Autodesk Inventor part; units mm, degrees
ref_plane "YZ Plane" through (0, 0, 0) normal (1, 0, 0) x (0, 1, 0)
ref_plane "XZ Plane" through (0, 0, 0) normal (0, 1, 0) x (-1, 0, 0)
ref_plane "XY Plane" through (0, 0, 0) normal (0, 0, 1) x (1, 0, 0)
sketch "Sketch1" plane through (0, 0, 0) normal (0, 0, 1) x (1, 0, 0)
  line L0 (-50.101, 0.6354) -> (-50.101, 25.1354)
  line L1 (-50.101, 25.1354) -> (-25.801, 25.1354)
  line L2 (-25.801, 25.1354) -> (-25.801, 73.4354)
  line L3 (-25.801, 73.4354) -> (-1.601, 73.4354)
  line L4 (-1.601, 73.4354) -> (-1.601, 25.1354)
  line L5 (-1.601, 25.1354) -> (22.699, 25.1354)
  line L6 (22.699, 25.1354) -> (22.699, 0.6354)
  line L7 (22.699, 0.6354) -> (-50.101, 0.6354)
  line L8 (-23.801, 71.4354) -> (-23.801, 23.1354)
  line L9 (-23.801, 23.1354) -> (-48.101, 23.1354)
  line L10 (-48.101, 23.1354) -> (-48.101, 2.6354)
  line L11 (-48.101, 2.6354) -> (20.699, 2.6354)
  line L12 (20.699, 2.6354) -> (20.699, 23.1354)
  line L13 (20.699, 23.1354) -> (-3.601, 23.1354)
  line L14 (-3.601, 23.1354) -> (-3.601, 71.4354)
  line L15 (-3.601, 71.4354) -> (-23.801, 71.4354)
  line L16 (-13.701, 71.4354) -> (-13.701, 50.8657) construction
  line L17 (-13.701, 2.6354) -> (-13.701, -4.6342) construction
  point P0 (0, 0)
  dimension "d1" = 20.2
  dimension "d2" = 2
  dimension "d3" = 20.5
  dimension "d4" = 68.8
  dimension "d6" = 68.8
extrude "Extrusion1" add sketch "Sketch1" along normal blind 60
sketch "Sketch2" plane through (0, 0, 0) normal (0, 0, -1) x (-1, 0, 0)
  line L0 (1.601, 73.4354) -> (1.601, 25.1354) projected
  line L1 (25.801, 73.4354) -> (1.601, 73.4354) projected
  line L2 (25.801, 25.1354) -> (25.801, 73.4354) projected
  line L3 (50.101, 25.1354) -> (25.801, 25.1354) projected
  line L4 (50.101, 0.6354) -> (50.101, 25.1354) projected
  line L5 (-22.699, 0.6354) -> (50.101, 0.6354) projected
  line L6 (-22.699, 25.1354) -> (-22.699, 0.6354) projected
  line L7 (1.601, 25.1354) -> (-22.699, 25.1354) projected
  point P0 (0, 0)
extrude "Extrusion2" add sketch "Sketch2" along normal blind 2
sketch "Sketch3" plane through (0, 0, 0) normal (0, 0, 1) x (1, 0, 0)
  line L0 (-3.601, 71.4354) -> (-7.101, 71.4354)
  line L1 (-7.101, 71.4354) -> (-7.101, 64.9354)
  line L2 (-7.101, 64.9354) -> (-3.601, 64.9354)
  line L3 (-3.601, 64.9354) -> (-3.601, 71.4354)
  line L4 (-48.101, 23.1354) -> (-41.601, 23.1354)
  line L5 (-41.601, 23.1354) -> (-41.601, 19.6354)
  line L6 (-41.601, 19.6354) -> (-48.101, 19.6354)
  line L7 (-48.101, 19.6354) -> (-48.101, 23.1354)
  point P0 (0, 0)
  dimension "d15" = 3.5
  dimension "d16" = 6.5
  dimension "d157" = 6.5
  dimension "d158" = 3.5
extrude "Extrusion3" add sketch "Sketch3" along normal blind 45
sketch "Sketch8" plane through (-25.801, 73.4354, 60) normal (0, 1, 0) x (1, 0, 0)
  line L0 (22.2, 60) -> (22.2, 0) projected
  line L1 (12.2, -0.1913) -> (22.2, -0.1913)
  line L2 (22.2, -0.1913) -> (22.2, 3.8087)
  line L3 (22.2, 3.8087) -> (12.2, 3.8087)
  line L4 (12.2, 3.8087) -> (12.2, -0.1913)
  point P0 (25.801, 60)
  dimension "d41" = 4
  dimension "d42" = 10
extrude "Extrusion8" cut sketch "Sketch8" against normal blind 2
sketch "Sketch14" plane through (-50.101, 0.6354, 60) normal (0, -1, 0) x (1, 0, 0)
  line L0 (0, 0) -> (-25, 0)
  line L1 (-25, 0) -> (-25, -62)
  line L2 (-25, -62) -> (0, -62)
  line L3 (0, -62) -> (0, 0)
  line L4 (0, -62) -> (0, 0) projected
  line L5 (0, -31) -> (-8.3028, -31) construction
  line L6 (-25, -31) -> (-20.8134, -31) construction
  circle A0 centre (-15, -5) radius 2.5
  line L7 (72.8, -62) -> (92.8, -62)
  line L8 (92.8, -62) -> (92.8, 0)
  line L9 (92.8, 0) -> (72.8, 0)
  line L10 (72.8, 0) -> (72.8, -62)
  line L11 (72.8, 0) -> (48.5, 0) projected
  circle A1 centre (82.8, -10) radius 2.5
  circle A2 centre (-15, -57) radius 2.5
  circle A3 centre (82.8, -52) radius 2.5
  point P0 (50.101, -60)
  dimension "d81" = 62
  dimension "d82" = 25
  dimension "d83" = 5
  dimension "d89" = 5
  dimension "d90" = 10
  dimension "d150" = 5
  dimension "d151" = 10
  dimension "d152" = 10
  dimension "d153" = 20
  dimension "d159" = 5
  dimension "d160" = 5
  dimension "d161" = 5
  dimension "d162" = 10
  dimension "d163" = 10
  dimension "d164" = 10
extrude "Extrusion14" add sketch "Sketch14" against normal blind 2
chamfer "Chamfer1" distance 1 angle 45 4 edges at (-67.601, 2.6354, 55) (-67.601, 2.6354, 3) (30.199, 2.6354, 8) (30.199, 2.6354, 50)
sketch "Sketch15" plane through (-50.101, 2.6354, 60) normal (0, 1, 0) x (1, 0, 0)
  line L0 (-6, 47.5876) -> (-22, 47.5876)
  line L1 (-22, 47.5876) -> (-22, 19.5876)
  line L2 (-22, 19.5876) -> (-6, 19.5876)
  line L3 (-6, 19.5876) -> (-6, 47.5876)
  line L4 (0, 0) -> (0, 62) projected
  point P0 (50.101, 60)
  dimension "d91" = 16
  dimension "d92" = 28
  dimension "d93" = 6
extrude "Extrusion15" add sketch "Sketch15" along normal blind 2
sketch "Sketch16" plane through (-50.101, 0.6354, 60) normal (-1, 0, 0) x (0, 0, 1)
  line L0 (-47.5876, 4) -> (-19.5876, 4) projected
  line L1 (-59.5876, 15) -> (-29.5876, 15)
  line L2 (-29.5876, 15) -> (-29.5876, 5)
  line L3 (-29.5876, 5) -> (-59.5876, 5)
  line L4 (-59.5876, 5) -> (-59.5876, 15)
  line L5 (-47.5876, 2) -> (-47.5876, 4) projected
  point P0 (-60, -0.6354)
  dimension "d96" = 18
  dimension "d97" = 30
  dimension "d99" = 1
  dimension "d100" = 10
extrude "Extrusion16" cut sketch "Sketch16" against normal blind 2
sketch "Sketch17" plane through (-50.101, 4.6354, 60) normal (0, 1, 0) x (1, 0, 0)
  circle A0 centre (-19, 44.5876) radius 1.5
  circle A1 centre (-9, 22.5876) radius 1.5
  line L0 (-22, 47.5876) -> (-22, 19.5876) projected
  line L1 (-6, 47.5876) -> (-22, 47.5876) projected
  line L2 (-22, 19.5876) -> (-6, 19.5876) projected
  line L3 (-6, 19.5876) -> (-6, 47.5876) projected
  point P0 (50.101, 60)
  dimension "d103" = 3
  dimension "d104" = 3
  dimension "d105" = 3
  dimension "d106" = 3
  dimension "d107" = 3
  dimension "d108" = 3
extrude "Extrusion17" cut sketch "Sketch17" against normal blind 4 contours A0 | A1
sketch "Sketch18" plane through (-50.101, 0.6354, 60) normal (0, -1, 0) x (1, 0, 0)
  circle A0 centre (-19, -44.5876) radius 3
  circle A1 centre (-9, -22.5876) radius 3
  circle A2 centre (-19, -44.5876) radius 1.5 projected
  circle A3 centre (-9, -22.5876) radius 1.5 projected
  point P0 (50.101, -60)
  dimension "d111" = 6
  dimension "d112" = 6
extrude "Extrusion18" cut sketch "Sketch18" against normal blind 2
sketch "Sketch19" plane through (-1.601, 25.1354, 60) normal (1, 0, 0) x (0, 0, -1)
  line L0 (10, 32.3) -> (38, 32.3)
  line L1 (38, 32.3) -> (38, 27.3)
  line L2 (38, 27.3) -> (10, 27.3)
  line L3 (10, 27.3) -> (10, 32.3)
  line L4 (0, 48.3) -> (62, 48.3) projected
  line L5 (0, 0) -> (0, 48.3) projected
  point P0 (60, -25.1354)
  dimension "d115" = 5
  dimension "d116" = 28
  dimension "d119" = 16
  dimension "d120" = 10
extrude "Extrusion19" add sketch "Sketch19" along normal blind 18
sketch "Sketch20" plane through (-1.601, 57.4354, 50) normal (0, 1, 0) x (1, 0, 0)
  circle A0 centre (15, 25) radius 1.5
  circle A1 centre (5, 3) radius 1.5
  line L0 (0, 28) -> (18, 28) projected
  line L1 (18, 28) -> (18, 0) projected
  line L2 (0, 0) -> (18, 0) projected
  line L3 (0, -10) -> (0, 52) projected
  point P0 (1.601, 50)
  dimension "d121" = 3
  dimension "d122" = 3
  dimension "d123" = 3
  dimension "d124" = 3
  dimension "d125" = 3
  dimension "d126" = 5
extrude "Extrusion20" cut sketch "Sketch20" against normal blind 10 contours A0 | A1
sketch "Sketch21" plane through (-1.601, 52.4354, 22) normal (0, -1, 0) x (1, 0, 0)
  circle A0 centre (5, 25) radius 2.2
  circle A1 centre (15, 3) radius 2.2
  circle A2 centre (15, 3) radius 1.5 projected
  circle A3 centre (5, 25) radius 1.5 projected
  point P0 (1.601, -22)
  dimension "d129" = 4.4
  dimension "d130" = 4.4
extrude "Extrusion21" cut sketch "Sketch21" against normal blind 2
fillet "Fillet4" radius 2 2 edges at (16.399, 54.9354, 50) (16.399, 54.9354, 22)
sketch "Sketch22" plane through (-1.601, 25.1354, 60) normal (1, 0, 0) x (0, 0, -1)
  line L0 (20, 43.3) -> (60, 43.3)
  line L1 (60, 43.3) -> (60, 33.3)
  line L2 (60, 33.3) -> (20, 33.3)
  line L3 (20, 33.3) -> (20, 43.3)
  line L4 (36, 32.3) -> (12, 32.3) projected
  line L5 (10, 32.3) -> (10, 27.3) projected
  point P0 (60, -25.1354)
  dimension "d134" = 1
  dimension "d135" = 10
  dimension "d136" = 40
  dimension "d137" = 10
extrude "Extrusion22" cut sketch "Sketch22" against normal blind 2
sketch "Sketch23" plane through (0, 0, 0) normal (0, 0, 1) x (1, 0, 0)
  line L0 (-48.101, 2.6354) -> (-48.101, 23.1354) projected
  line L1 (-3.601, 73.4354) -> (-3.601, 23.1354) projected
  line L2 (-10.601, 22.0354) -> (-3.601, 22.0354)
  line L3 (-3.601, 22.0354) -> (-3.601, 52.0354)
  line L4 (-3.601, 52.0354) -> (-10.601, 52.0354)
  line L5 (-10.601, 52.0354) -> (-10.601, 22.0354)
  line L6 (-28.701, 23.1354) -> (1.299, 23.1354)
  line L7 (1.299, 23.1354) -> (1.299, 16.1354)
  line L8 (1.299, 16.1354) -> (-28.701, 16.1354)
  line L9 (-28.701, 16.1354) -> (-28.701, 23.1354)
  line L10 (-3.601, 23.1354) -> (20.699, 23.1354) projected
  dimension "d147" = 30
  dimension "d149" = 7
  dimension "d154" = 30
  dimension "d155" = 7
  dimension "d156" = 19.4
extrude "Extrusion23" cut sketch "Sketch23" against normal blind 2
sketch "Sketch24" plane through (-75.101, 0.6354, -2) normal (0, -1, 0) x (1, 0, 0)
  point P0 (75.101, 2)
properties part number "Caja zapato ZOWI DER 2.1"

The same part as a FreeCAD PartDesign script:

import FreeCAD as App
import Part
import Sketcher

V = App.Vector


def edges_at(feature, points):
    """Names of the edges that pass closest to the given points."""
    edges = feature.Shape.Edges
    near = lambda p: min(range(len(edges)), key=lambda i: edges[i].distToShape(Part.Vertex(*p))[0])
    return sorted({f"Edge{near(p) + 1}" for p in points})

doc = App.newDocument("Part")
body = doc.addObject("PartDesign::Body", "Body")

# Sketch on XY plane
sketch1 = body.newObject("Sketcher::SketchObject", "Sketch")
sketch1.AttachmentSupport = (doc.getObject("XY_Plane"), [""])
sketch1.MapMode = "FlatFace"
sketch1.addGeometry([
    Part.LineSegment(V(-50.101, 25.1354, 0), V(-50.101, 0.6354, 0)),  # 0
    Part.LineSegment(V(-50.101, 0.6354, 0), V(22.699, 0.6354, 0)),  # 1
    Part.LineSegment(V(22.699, 0.6354, 0), V(22.699, 25.1354, 0)),  # 2
    Part.LineSegment(V(22.699, 25.1354, 0), V(-1.601, 25.1354, 0)),  # 3
    Part.LineSegment(V(-1.601, 25.1354, 0), V(-1.601, 73.4354, 0)),  # 4
    Part.LineSegment(V(-1.601, 73.4354, 0), V(-25.801, 73.4354, 0)),  # 5
    Part.LineSegment(V(-25.801, 73.4354, 0), V(-25.801, 25.1354, 0)),  # 6
    Part.LineSegment(V(-25.801, 25.1354, 0), V(-50.101, 25.1354, 0)),  # 7
    Part.LineSegment(V(-23.801, 23.1354, 0), V(-23.801, 71.4354, 0)),  # 8
    Part.LineSegment(V(-23.801, 71.4354, 0), V(-3.601, 71.4354, 0)),  # 9
    Part.LineSegment(V(-3.601, 71.4354, 0), V(-3.601, 23.1354, 0)),  # 10
    Part.LineSegment(V(-3.601, 23.1354, 0), V(20.699, 23.1354, 0)),  # 11
    Part.LineSegment(V(20.699, 23.1354, 0), V(20.699, 2.6354, 0)),  # 12
    Part.LineSegment(V(20.699, 2.6354, 0), V(-48.101, 2.6354, 0)),  # 13
    Part.LineSegment(V(-48.101, 2.6354, 0), V(-48.101, 23.1354, 0)),  # 14
    Part.LineSegment(V(-48.101, 23.1354, 0), V(-23.801, 23.1354, 0)),  # 15
], False)
sketch1.addConstraint([
    Sketcher.Constraint("Coincident", 0, 2, 1, 1),
    Sketcher.Constraint("Coincident", 1, 2, 2, 1),
    Sketcher.Constraint("Coincident", 2, 2, 3, 1),
    Sketcher.Constraint("Coincident", 3, 2, 4, 1),
    Sketcher.Constraint("Coincident", 4, 2, 5, 1),
    Sketcher.Constraint("Coincident", 5, 2, 6, 1),
    Sketcher.Constraint("Coincident", 6, 2, 7, 1),
    Sketcher.Constraint("Coincident", 7, 2, 0, 1),
    Sketcher.Constraint("Coincident", 8, 2, 9, 1),
    Sketcher.Constraint("Coincident", 9, 2, 10, 1),
    Sketcher.Constraint("Coincident", 10, 2, 11, 1),
    Sketcher.Constraint("Coincident", 11, 2, 12, 1),
    Sketcher.Constraint("Coincident", 12, 2, 13, 1),
    Sketcher.Constraint("Coincident", 13, 2, 14, 1),
    Sketcher.Constraint("Coincident", 14, 2, 15, 1),
    Sketcher.Constraint("Coincident", 15, 2, 8, 1),
    Sketcher.Constraint("Vertical", 0),
    Sketcher.Constraint("Horizontal", 1),
    Sketcher.Constraint("Vertical", 2),
    Sketcher.Constraint("Horizontal", 3),
    Sketcher.Constraint("Vertical", 4),
    Sketcher.Constraint("Horizontal", 5),
    Sketcher.Constraint("Vertical", 6),
    Sketcher.Constraint("Horizontal", 7),
    Sketcher.Constraint("Vertical", 8),
    Sketcher.Constraint("Horizontal", 9),
    Sketcher.Constraint("Vertical", 10),
    Sketcher.Constraint("Horizontal", 11),
    Sketcher.Constraint("Vertical", 12),
    Sketcher.Constraint("Horizontal", 13),
    Sketcher.Constraint("Vertical", 14),
    Sketcher.Constraint("Horizontal", 15),
    Sketcher.Constraint("Horizontal", 3, 2, 6, 2),
    Sketcher.Constraint("Horizontal", 11, 2, 14, 2),
    Sketcher.Constraint("Equal", 3, 7),
    Sketcher.Constraint("Equal", 7, 11),
    Sketcher.Constraint("Equal", 11, 15),
    Sketcher.Constraint("Equal", 6, 8),
    Sketcher.Constraint("DistanceX", 9, 1, 9, 2, 20.2),
    Sketcher.Constraint("DistanceX", 13, 2, 13, 1, 68.8),
    Sketcher.Constraint("DistanceY", 12, 2, 12, 1, 20.5),
    Sketcher.Constraint("DistanceX", 5, 2, 8, 2, 2.0),
    Sketcher.Constraint("DistanceY", 8, 2, 5, 2, 2.0),
    Sketcher.Constraint("DistanceX", 9, 2, 4, 2, 2.0),
    Sketcher.Constraint("DistanceY", 1, 2, 12, 2, 2.0),
    Sketcher.Constraint("DistanceY", 4, 1, 4, 2, 48.3),
    Sketcher.Constraint("DistanceX", 0, 2, -1, 1, 50.101),
    Sketcher.Constraint("DistanceY", -1, 1, 0, 2, 0.6354),
])
pad1 = body.newObject("PartDesign::Pad", "Pad")
pad1.Profile = sketch1
pad1.Length = 60

# Sketch on XY plane
sketch2 = body.newObject("Sketcher::SketchObject", "Sketch001")
sketch2.AttachmentSupport = (doc.getObject("XY_Plane"), [""])
sketch2.MapMode = "FlatFace"
sketch2.addGeometry([
    Part.LineSegment(V(-25.801, 73.4354, 0), V(-1.601, 73.4354, 0)),  # 0
    Part.LineSegment(V(-1.601, 73.4354, 0), V(-1.601, 25.1354, 0)),  # 1
    Part.LineSegment(V(-1.601, 25.1354, 0), V(22.699, 25.1354, 0)),  # 2
    Part.LineSegment(V(22.699, 25.1354, 0), V(22.699, 0.6354, 0)),  # 3
    Part.LineSegment(V(22.699, 0.6354, 0), V(-50.101, 0.6354, 0)),  # 4
    Part.LineSegment(V(-50.101, 0.6354, 0), V(-50.101, 25.1354, 0)),  # 5
    Part.LineSegment(V(-50.101, 25.1354, 0), V(-25.801, 25.1354, 0)),  # 6
    Part.LineSegment(V(-25.801, 25.1354, 0), V(-25.801, 73.4354, 0)),  # 7
], False)
sketch2.addConstraint([
    Sketcher.Constraint("Coincident", 0, 2, 1, 1),
    Sketcher.Constraint("Coincident", 1, 2, 2, 1),
    Sketcher.Constraint("Coincident", 2, 2, 3, 1),
    Sketcher.Constraint("Coincident", 3, 2, 4, 1),
    Sketcher.Constraint("Coincident", 4, 2, 5, 1),
    Sketcher.Constraint("Coincident", 5, 2, 6, 1),
    Sketcher.Constraint("Coincident", 6, 2, 7, 1),
    Sketcher.Constraint("Coincident", 7, 2, 0, 1),
    Sketcher.Constraint("Horizontal", 0),
    Sketcher.Constraint("Vertical", 1),
    Sketcher.Constraint("Horizontal", 2),
    Sketcher.Constraint("Vertical", 3),
    Sketcher.Constraint("Horizontal", 4),
    Sketcher.Constraint("Vertical", 5),
    Sketcher.Constraint("Horizontal", 6),
    Sketcher.Constraint("Vertical", 7),
    Sketcher.Constraint("Horizontal", 2, 2, 5, 2),
    Sketcher.Constraint("Equal", 2, 6),
    Sketcher.Constraint("DistanceX", 0, 1, 0, 2, 24.2),
    Sketcher.Constraint("DistanceX", 2, 1, 2, 2, 24.3),
    Sketcher.Constraint("DistanceY", 1, 2, 1, 1, 48.3),
    Sketcher.Constraint("DistanceY", 3, 2, 3, 1, 24.5),
    Sketcher.Constraint("DistanceX", 0, 2, -1, 1, 1.601),
    Sketcher.Constraint("DistanceY", -1, 1, 0, 2, 73.4354),
])
pad2 = body.newObject("PartDesign::Pad", "Pad001")
pad2.Profile = sketch2
pad2.Length = 2
pad2.Reversed = True

# Sketch on XY plane
sketch3 = body.newObject("Sketcher::SketchObject", "Sketch002")
sketch3.AttachmentSupport = (doc.getObject("XY_Plane"), [""])
sketch3.MapMode = "FlatFace"
sketch3.addGeometry([
    Part.LineSegment(V(-3.601, 64.9354, 0), V(-3.601, 71.4354, 0)),  # 0
    Part.LineSegment(V(-3.601, 71.4354, 0), V(-7.101, 71.4354, 0)),  # 1
    Part.LineSegment(V(-7.101, 71.4354, 0), V(-7.101, 64.9354, 0)),  # 2
    Part.LineSegment(V(-7.101, 64.9354, 0), V(-3.601, 64.9354, 0)),  # 3
    Part.LineSegment(V(-41.601, 23.1354, 0), V(-48.101, 23.1354, 0)),  # 4
    Part.LineSegment(V(-48.101, 23.1354, 0), V(-48.101, 19.6354, 0)),  # 5
    Part.LineSegment(V(-48.101, 19.6354, 0), V(-41.601, 19.6354, 0)),  # 6
    Part.LineSegment(V(-41.601, 19.6354, 0), V(-41.601, 23.1354, 0)),  # 7
], False)
sketch3.addConstraint([
    Sketcher.Constraint("Coincident", 0, 2, 1, 1),
    Sketcher.Constraint("Coincident", 1, 2, 2, 1),
    Sketcher.Constraint("Coincident", 2, 2, 3, 1),
    Sketcher.Constraint("Coincident", 3, 2, 0, 1),
    Sketcher.Constraint("Coincident", 4, 2, 5, 1),
    Sketcher.Constraint("Coincident", 5, 2, 6, 1),
    Sketcher.Constraint("Coincident", 6, 2, 7, 1),
    Sketcher.Constraint("Coincident", 7, 2, 4, 1),
    Sketcher.Constraint("Vertical", 0),
    Sketcher.Constraint("Horizontal", 1),
    Sketcher.Constraint("Vertical", 2),
    Sketcher.Constraint("Horizontal", 3),
    Sketcher.Constraint("Horizontal", 4),
    Sketcher.Constraint("Vertical", 5),
    Sketcher.Constraint("Horizontal", 6),
    Sketcher.Constraint("Vertical", 7),
    Sketcher.Constraint("Equal", 6, 0),
    Sketcher.Constraint("Equal", 3, 5),
    Sketcher.Constraint("DistanceX", 1, 2, 1, 1, 3.5),
    Sketcher.Constraint("DistanceX", 4, 2, 4, 1, 6.5),
    Sketcher.Constraint("DistanceX", 4, 2, 2, 2, 41.0),
    Sketcher.Constraint("DistanceY", 4, 2, 2, 2, 41.8),
    Sketcher.Constraint("DistanceX", 0, 2, -1, 1, 3.601),
    Sketcher.Constraint("DistanceY", -1, 1, 0, 2, 71.4354),
])
pad3 = body.newObject("PartDesign::Pad", "Pad002")
pad3.Profile = sketch3
pad3.Length = 45

# Sketch on XZ plane
sketch4 = body.newObject("Sketcher::SketchObject", "Sketch003")
sketch4.AttachmentSupport = (doc.getObject("XZ_Plane"), [""])
sketch4.MapMode = "FlatFace"
sketch4.AttachmentOffset = App.Placement(V(0, 0, -73.4354), App.Rotation())
sketch4.addGeometry([
    Part.LineSegment(V(-3.601, 60.1913, 0), V(-3.601, 56.1913, 0)),
    Part.LineSegment(V(-3.601, 56.1913, 0), V(-13.601, 56.1913, 0)),
    Part.LineSegment(V(-13.601, 56.1913, 0), V(-13.601, 60.1913, 0)),
    Part.LineSegment(V(-13.601, 60.1913, 0), V(-3.601, 60.1913, 0)),
], False)
sketch4.addConstraint([
    Sketcher.Constraint("Coincident", 0, 2, 1, 1),
    Sketcher.Constraint("Coincident", 1, 2, 2, 1),
    Sketcher.Constraint("Coincident", 2, 2, 3, 1),
    Sketcher.Constraint("Coincident", 3, 2, 0, 1),
    Sketcher.Constraint("Vertical", 0),
    Sketcher.Constraint("Horizontal", 1),
    Sketcher.Constraint("Vertical", 2),
    Sketcher.Constraint("Horizontal", 3),
    Sketcher.Constraint("DistanceX", 1, 2, 1, 1, 10.0),
    Sketcher.Constraint("DistanceY", 0, 2, 0, 1, 4.0),
    Sketcher.Constraint("DistanceX", 0, 2, -1, 1, 3.601),
    Sketcher.Constraint("DistanceY", -1, 1, 0, 2, 56.1913),
])
pocket1 = body.newObject("PartDesign::Pocket", "Pocket")
pocket1.Profile = sketch4
pocket1.Length = 2
pocket1.Reversed = True

# Sketch on XZ plane
sketch5 = body.newObject("Sketcher::SketchObject", "Sketch004")
sketch5.AttachmentSupport = (doc.getObject("XZ_Plane"), [""])
sketch5.MapMode = "FlatFace"
sketch5.AttachmentOffset = App.Placement(V(0, 0, -0.6354), App.Rotation())
sketch5.addGeometry([
    Part.LineSegment(V(-50.101, -2, 0), V(-50.101, 60, 0)),  # 0
    Part.LineSegment(V(-50.101, 60, 0), V(-75.101, 60, 0)),  # 1
    Part.LineSegment(V(-75.101, 60, 0), V(-75.101, -2, 0)),  # 2
    Part.LineSegment(V(-75.101, -2, 0), V(-50.101, -2, 0)),  # 3
    Part.Circle(V(-65.101, 3, 0), V(0, 0, 1), 2.5),  # 4
    Part.Circle(V(-65.101, 55, 0), V(0, 0, 1), 2.5),  # 5
    Part.LineSegment(V(22.699, 60, 0), V(22.699, -2, 0)),  # 6
    Part.LineSegment(V(22.699, -2, 0), V(42.699, -2, 0)),  # 7
    Part.LineSegment(V(42.699, -2, 0), V(42.699, 60, 0)),  # 8
    Part.LineSegment(V(42.699, 60, 0), V(22.699, 60, 0)),  # 9
    Part.Circle(V(32.699, 8, 0), V(0, 0, 1), 2.5),  # 10
    Part.Circle(V(32.699, 50, 0), V(0, 0, 1), 2.5),  # 11
], False)
sketch5.addConstraint([
    Sketcher.Constraint("Coincident", 0, 2, 1, 1),
    Sketcher.Constraint("Coincident", 1, 2, 2, 1),
    Sketcher.Constraint("Coincident", 2, 2, 3, 1),
    Sketcher.Constraint("Coincident", 3, 2, 0, 1),
    Sketcher.Constraint("Coincident", 6, 2, 7, 1),
    Sketcher.Constraint("Coincident", 7, 2, 8, 1),
    Sketcher.Constraint("Coincident", 8, 2, 9, 1),
    Sketcher.Constraint("Coincident", 9, 2, 6, 1),
    Sketcher.Constraint("Vertical", 0),
    Sketcher.Constraint("Horizontal", 1),
    Sketcher.Constraint("Vertical", 2),
    Sketcher.Constraint("Horizontal", 3),
    Sketcher.Constraint("Vertical", 6),
    Sketcher.Constraint("Horizontal", 7),
    Sketcher.Constraint("Vertical", 8),
    Sketcher.Constraint("Horizontal", 9),
    Sketcher.Constraint("Equal", 4, 5),
    Sketcher.Constraint("Equal", 5, 10),
    Sketcher.Constraint("Equal", 10, 11),
    Sketcher.Constraint("Horizontal", 3, 2, 6, 2),
    Sketcher.Constraint("Horizontal", 1, 2, 8, 2),
    Sketcher.Constraint("Vertical", 4, 3, 5, 3),
    Sketcher.Constraint("Vertical", 10, 3, 11, 3),
    Sketcher.Constraint("Diameter", 4, 5.0),
    Sketcher.Constraint("DistanceX", 1, 2, 1, 1, 25.0),
    Sketcher.Constraint("DistanceX", 7, 1, 7, 2, 20.0),
    Sketcher.Constraint("DistanceY", 0, 1, 0, 2, 62.0),
    Sketcher.Constraint("DistanceY", 4, 3, 10, 3, 5.0),
    Sketcher.Constraint("DistanceY", 11, 3, 5, 3, 5.0),
    Sketcher.Constraint("DistanceY", 5, 3, 0, 2, 5.0),
    Sketcher.Constraint("DistanceX", 1, 2, 5, 3, 10.0),
    Sketcher.Constraint("DistanceY", 2, 2, 4, 3, 5.0),
    Sketcher.Constraint("DistanceX", 6, 2, 10, 3, 10.0),
    Sketcher.Constraint("DistanceY", -1, 1, 4, 3, 3.0),
    Sketcher.Constraint("DistanceX", 4, 3, 10, 3, 97.8),
    Sketcher.Constraint("DistanceX", 4, 3, -1, 1, 65.101),
])
pad4 = body.newObject("PartDesign::Pad", "Pad003")
pad4.Profile = sketch5
pad4.Length = 2
pad4.Reversed = True
doc.recompute()

chamfer = body.newObject("PartDesign::Chamfer", "Chamfer")
chamfer.Base = (pad4, edges_at(pad4, [
    (-67.601, 2.635, 55),
    (-67.601, 2.635, 3),
    (30.199, 2.635, 8),
    (30.199, 2.635, 50),
]))
chamfer.Size = 1

# Sketch on XZ plane
sketch6 = body.newObject("Sketcher::SketchObject", "Sketch005")
sketch6.AttachmentSupport = (doc.getObject("XZ_Plane"), [""])
sketch6.MapMode = "FlatFace"
sketch6.AttachmentOffset = App.Placement(V(0, 0, -2.6354), App.Rotation())
sketch6.addGeometry([
    Part.LineSegment(V(-56.101, 40.4124, 0), V(-56.101, 12.4124, 0)),
    Part.LineSegment(V(-56.101, 12.4124, 0), V(-72.101, 12.4124, 0)),
    Part.LineSegment(V(-72.101, 12.4124, 0), V(-72.101, 40.4124, 0)),
    Part.LineSegment(V(-72.101, 40.4124, 0), V(-56.101, 40.4124, 0)),
], False)
sketch6.addConstraint([
    Sketcher.Constraint("Coincident", 0, 2, 1, 1),
    Sketcher.Constraint("Coincident", 1, 2, 2, 1),
    Sketcher.Constraint("Coincident", 2, 2, 3, 1),
    Sketcher.Constraint("Coincident", 3, 2, 0, 1),
    Sketcher.Constraint("Vertical", 0),
    Sketcher.Constraint("Horizontal", 1),
    Sketcher.Constraint("Vertical", 2),
    Sketcher.Constraint("Horizontal", 3),
    Sketcher.Constraint("DistanceX", 1, 2, 1, 1, 16.0),
    Sketcher.Constraint("DistanceY", 0, 2, 0, 1, 28.0),
    Sketcher.Constraint("DistanceX", 0, 2, -1, 1, 56.101),
    Sketcher.Constraint("DistanceY", -1, 1, 0, 2, 12.4124),
])
pad5 = body.newObject("PartDesign::Pad", "Pad004")
pad5.Profile = sketch6
pad5.Length = 2
pad5.Reversed = True

# Sketch on YZ plane
sketch7 = body.newObject("Sketcher::SketchObject", "Sketch006")
sketch7.AttachmentSupport = (doc.getObject("YZ_Plane"), [""])
sketch7.MapMode = "FlatFace"
sketch7.AttachmentOffset = App.Placement(V(0, 0, -50.101), App.Rotation())
sketch7.addGeometry([
    Part.LineSegment(V(15.6354, 30.4124, 0), V(15.6354, 0.4124, 0)),
    Part.LineSegment(V(15.6354, 0.4124, 0), V(5.6354, 0.4124, 0)),
    Part.LineSegment(V(5.6354, 0.4124, 0), V(5.6354, 30.4124, 0)),
    Part.LineSegment(V(5.6354, 30.4124, 0), V(15.6354, 30.4124, 0)),
], False)
sketch7.addConstraint([
    Sketcher.Constraint("Coincident", 0, 2, 1, 1),
    Sketcher.Constraint("Coincident", 1, 2, 2, 1),
    Sketcher.Constraint("Coincident", 2, 2, 3, 1),
    Sketcher.Constraint("Coincident", 3, 2, 0, 1),
    Sketcher.Constraint("Vertical", 0),
    Sketcher.Constraint("Horizontal", 1),
    Sketcher.Constraint("Vertical", 2),
    Sketcher.Constraint("Horizontal", 3),
    Sketcher.Constraint("DistanceX", 1, 2, 1, 1, 10.0),
    Sketcher.Constraint("DistanceY", 0, 2, 0, 1, 30.0),
    Sketcher.Constraint("DistanceX", -1, 1, 0, 2, 15.6354),
    Sketcher.Constraint("DistanceY", -1, 1, 0, 2, 0.4124),
])
pocket2 = body.newObject("PartDesign::Pocket", "Pocket001")
pocket2.Profile = sketch7
pocket2.Length = 2
pocket2.Reversed = True

# Sketch on XZ plane
sketch8 = body.newObject("Sketcher::SketchObject", "Sketch007")
sketch8.AttachmentSupport = (doc.getObject("XZ_Plane"), [""])
sketch8.MapMode = "FlatFace"
sketch8.AttachmentOffset = App.Placement(V(0, 0, -4.6354), App.Rotation())
sketch8.addGeometry([
    Part.Circle(V(-69.101, 15.4124, 0), V(0, 0, 1), 1.5),
    Part.Circle(V(-59.101, 37.4124, 0), V(0, 0, 1), 1.5),
], False)
sketch8.addConstraint([
    Sketcher.Constraint("Equal", 0, 1),
    Sketcher.Constraint("Diameter", 0, 3.0),
    Sketcher.Constraint("DistanceX", 0, 3, 1, 3, 10.0),
    Sketcher.Constraint("DistanceY", 0, 3, 1, 3, 22.0),
    Sketcher.Constraint("DistanceX", 0, 3, -1, 1, 69.101),
    Sketcher.Constraint("DistanceY", -1, 1, 0, 3, 15.4124),
])
pocket3 = body.newObject("PartDesign::Pocket", "Pocket002")
pocket3.Profile = sketch8
pocket3.Length = 4
pocket3.Reversed = True

# Sketch on XZ plane
sketch9 = body.newObject("Sketcher::SketchObject", "Sketch008")
sketch9.AttachmentSupport = (doc.getObject("XZ_Plane"), [""])
sketch9.MapMode = "FlatFace"
sketch9.AttachmentOffset = App.Placement(V(0, 0, -0.6354), App.Rotation())
sketch9.addGeometry([
    Part.Circle(V(-69.101, 15.4124, 0), V(0, 0, 1), 3),
    Part.Circle(V(-69.101, 15.4124, 0), V(0, 0, 1), 1.5),
    Part.Circle(V(-59.101, 37.4124, 0), V(0, 0, 1), 3),
    Part.Circle(V(-59.101, 37.4124, 0), V(0, 0, 1), 1.5),
], False)
sketch9.addConstraint([
    Sketcher.Constraint("Coincident", 1, 3, 0, 3),
    Sketcher.Constraint("Coincident", 3, 3, 2, 3),
    Sketcher.Constraint("Equal", 0, 2),
    Sketcher.Constraint("Equal", 1, 3),
    Sketcher.Constraint("Diameter", 0, 6.0),
    Sketcher.Constraint("Diameter", 1, 3.0),
    Sketcher.Constraint("DistanceX", 0, 3, 2, 3, 10.0),
    Sketcher.Constraint("DistanceY", 0, 3, 2, 3, 22.0),
    Sketcher.Constraint("DistanceX", 0, 3, -1, 1, 69.101),
    Sketcher.Constraint("DistanceY", -1, 1, 0, 3, 15.4124),
])
pocket4 = body.newObject("PartDesign::Pocket", "Pocket003")
pocket4.Profile = sketch9
pocket4.Length = 2

# Sketch on YZ plane
sketch10 = body.newObject("Sketcher::SketchObject", "Sketch009")
sketch10.AttachmentSupport = (doc.getObject("YZ_Plane"), [""])
sketch10.MapMode = "FlatFace"
sketch10.AttachmentOffset = App.Placement(V(0, 0, -1.601), App.Rotation())
sketch10.addGeometry([
    Part.LineSegment(V(57.4354, 22, 0), V(57.4354, 50, 0)),
    Part.LineSegment(V(57.4354, 50, 0), V(52.4354, 50, 0)),
    Part.LineSegment(V(52.4354, 50, 0), V(52.4354, 22, 0)),
    Part.LineSegment(V(52.4354, 22, 0), V(57.4354, 22, 0)),
], False)
sketch10.addConstraint([
    Sketcher.Constraint("Coincident", 0, 2, 1, 1),
    Sketcher.Constraint("Coincident", 1, 2, 2, 1),
    Sketcher.Constraint("Coincident", 2, 2, 3, 1),
    Sketcher.Constraint("Coincident", 3, 2, 0, 1),
    Sketcher.Constraint("Vertical", 0),
    Sketcher.Constraint("Horizontal", 1),
    Sketcher.Constraint("Vertical", 2),
    Sketcher.Constraint("Horizontal", 3),
    Sketcher.Constraint("DistanceX", 1, 2, 1, 1, 5.0),
    Sketcher.Constraint("DistanceY", 0, 1, 0, 2, 28.0),
    Sketcher.Constraint("DistanceY", -1, 1, 0, 2, 50.0),
    Sketcher.Constraint("DistanceX", -1, 1, 0, 2, 57.4354),
])
pad6 = body.newObject("PartDesign::Pad", "Pad005")
pad6.Profile = sketch10
pad6.Length = 18

# Sketch on XZ plane
sketch11 = body.newObject("Sketcher::SketchObject", "Sketch010")
sketch11.AttachmentSupport = (doc.getObject("XZ_Plane"), [""])
sketch11.MapMode = "FlatFace"
sketch11.AttachmentOffset = App.Placement(V(0, 0, -57.4354), App.Rotation())
sketch11.addGeometry([
    Part.Circle(V(13.399, 25, 0), V(0, 0, 1), 1.5),
    Part.Circle(V(3.399, 47, 0), V(0, 0, 1), 1.5),
], False)
sketch11.addConstraint([
    Sketcher.Constraint("Equal", 0, 1),
    Sketcher.Constraint("Diameter", 0, 3.0),
    Sketcher.Constraint("DistanceY", -1, 1, 0, 3, 25.0),
    Sketcher.Constraint("DistanceY", -1, 1, 1, 3, 47.0),
    Sketcher.Constraint("DistanceX", 1, 3, 0, 3, 10.0),
    Sketcher.Constraint("DistanceX", -1, 1, 0, 3, 13.399),
])
pocket5 = body.newObject("PartDesign::Pocket", "Pocket004")
pocket5.Profile = sketch11
pocket5.Length = 10
pocket5.Reversed = True

# Sketch on XZ plane
sketch12 = body.newObject("Sketcher::SketchObject", "Sketch011")
sketch12.AttachmentSupport = (doc.getObject("XZ_Plane"), [""])
sketch12.MapMode = "FlatFace"
sketch12.AttachmentOffset = App.Placement(V(0, 0, -52.4354), App.Rotation())
sketch12.addGeometry([
    Part.Circle(V(3.399, 47, 0), V(0, 0, 1), 2.2),
    Part.Circle(V(3.399, 47, 0), V(0, 0, 1), 1.5),
    Part.Circle(V(13.399, 25, 0), V(0, 0, 1), 2.2),
    Part.Circle(V(13.399, 25, 0), V(0, 0, 1), 1.5),
], False)
sketch12.addConstraint([
    Sketcher.Constraint("Coincident", 1, 3, 0, 3),
    Sketcher.Constraint("Coincident", 3, 3, 2, 3),
    Sketcher.Constraint("Equal", 0, 2),
    Sketcher.Constraint("Equal", 1, 3),
    Sketcher.Constraint("Diameter", 0, 4.4),
    Sketcher.Constraint("Diameter", 1, 3.0),
    Sketcher.Constraint("DistanceY", -1, 1, 0, 3, 47.0),
    Sketcher.Constraint("DistanceY", -1, 1, 2, 3, 25.0),
    Sketcher.Constraint("DistanceX", 0, 3, 2, 3, 10.0),
    Sketcher.Constraint("DistanceX", -1, 1, 0, 3, 3.399),
])
pocket6 = body.newObject("PartDesign::Pocket", "Pocket005")
pocket6.Profile = sketch12
pocket6.Length = 2
doc.recompute()

fillet = body.newObject("PartDesign::Fillet", "Fillet")
fillet.Base = (pocket6, edges_at(pocket6, [(16.399, 54.935, 50), (16.399, 54.935, 22)]))
fillet.Radius = 2

# Sketch on YZ plane
sketch13 = body.newObject("Sketcher::SketchObject", "Sketch012")
sketch13.AttachmentSupport = (doc.getObject("YZ_Plane"), [""])
sketch13.MapMode = "FlatFace"
sketch13.AttachmentOffset = App.Placement(V(0, 0, -1.601), App.Rotation())
sketch13.addGeometry([
    Part.LineSegment(V(68.4354, 0, 0), V(68.4354, 40, 0)),
    Part.LineSegment(V(68.4354, 40, 0), V(58.4354, 40, 0)),
    Part.LineSegment(V(58.4354, 40, 0), V(58.4354, 0, 0)),
    Part.LineSegment(V(58.4354, 0, 0), V(68.4354, 0, 0)),
], False)
sketch13.addConstraint([
    Sketcher.Constraint("Coincident", 0, 2, 1, 1),
    Sketcher.Constraint("Coincident", 1, 2, 2, 1),
    Sketcher.Constraint("Coincident", 2, 2, 3, 1),
    Sketcher.Constraint("Coincident", 3, 2, 0, 1),
    Sketcher.Constraint("Vertical", 0),
    Sketcher.Constraint("Horizontal", 1),
    Sketcher.Constraint("Vertical", 2),
    Sketcher.Constraint("Horizontal", 3),
    Sketcher.Constraint("PointOnObject", 2, 2, -1),
    Sketcher.Constraint("DistanceX", 1, 2, 1, 1, 10.0),
    Sketcher.Constraint("DistanceY", 0, 1, 0, 2, 40.0),
    Sketcher.Constraint("DistanceX", -1, 1, 0, 2, 68.4354),
])
pocket7 = body.newObject("PartDesign::Pocket", "Pocket006")
pocket7.Profile = sketch13
pocket7.Length = 2

# Sketch on XY plane
sketch14 = body.newObject("Sketcher::SketchObject", "Sketch013")
sketch14.AttachmentSupport = (doc.getObject("XY_Plane"), [""])
sketch14.MapMode = "FlatFace"
sketch14.addGeometry([
    Part.LineSegment(V(-3.601, 23.1354, 0), V(-3.601, 52.0354, 0)),  # 0
    Part.LineSegment(V(-3.601, 52.0354, 0), V(-10.601, 52.0354, 0)),  # 1
    Part.LineSegment(V(-10.601, 52.0354, 0), V(-10.601, 23.1354, 0)),  # 2
    Part.LineSegment(V(-10.601, 23.1354, 0), V(-28.701, 23.1354, 0)),  # 3
    Part.LineSegment(V(-28.701, 23.1354, 0), V(-28.701, 16.1354, 0)),  # 4
    Part.LineSegment(V(-28.701, 16.1354, 0), V(1.299, 16.1354, 0)),  # 5
    Part.LineSegment(V(1.299, 16.1354, 0), V(1.299, 23.1354, 0)),  # 6
    Part.LineSegment(V(1.299, 23.1354, 0), V(-3.601, 23.1354, 0)),  # 7
], False)
sketch14.addConstraint([
    Sketcher.Constraint("Coincident", 0, 2, 1, 1),
    Sketcher.Constraint("Coincident", 1, 2, 2, 1),
    Sketcher.Constraint("Coincident", 2, 2, 3, 1),
    Sketcher.Constraint("Coincident", 3, 2, 4, 1),
    Sketcher.Constraint("Coincident", 4, 2, 5, 1),
    Sketcher.Constraint("Coincident", 5, 2, 6, 1),
    Sketcher.Constraint("Coincident", 6, 2, 7, 1),
    Sketcher.Constraint("Coincident", 7, 2, 0, 1),
    Sketcher.Constraint("Vertical", 0),
    Sketcher.Constraint("Horizontal", 1),
    Sketcher.Constraint("Vertical", 2),
    Sketcher.Constraint("Horizontal", 3),
    Sketcher.Constraint("Vertical", 4),
    Sketcher.Constraint("Horizontal", 5),
    Sketcher.Constraint("Vertical", 6),
    Sketcher.Constraint("Horizontal", 7),
    Sketcher.Constraint("Horizontal", 3, 2, 6, 2),
    Sketcher.Constraint("Equal", 1, 4),
    Sketcher.Constraint("DistanceX", 1, 2, 1, 1, 7.0),
    Sketcher.Constraint("DistanceX", 5, 1, 5, 2, 30.0),
    Sketcher.Constraint("DistanceX", 3, 2, 3, 1, 18.1),
    Sketcher.Constraint("DistanceY", 0, 1, 0, 2, 28.9),
    Sketcher.Constraint("DistanceX", 0, 2, -1, 1, 3.601),
    Sketcher.Constraint("DistanceY", -1, 1, 0, 2, 52.0354),
])
pocket8 = body.newObject("PartDesign::Pocket", "Pocket007")
pocket8.Profile = sketch14
pocket8.Length = 2

doc.recompute()
